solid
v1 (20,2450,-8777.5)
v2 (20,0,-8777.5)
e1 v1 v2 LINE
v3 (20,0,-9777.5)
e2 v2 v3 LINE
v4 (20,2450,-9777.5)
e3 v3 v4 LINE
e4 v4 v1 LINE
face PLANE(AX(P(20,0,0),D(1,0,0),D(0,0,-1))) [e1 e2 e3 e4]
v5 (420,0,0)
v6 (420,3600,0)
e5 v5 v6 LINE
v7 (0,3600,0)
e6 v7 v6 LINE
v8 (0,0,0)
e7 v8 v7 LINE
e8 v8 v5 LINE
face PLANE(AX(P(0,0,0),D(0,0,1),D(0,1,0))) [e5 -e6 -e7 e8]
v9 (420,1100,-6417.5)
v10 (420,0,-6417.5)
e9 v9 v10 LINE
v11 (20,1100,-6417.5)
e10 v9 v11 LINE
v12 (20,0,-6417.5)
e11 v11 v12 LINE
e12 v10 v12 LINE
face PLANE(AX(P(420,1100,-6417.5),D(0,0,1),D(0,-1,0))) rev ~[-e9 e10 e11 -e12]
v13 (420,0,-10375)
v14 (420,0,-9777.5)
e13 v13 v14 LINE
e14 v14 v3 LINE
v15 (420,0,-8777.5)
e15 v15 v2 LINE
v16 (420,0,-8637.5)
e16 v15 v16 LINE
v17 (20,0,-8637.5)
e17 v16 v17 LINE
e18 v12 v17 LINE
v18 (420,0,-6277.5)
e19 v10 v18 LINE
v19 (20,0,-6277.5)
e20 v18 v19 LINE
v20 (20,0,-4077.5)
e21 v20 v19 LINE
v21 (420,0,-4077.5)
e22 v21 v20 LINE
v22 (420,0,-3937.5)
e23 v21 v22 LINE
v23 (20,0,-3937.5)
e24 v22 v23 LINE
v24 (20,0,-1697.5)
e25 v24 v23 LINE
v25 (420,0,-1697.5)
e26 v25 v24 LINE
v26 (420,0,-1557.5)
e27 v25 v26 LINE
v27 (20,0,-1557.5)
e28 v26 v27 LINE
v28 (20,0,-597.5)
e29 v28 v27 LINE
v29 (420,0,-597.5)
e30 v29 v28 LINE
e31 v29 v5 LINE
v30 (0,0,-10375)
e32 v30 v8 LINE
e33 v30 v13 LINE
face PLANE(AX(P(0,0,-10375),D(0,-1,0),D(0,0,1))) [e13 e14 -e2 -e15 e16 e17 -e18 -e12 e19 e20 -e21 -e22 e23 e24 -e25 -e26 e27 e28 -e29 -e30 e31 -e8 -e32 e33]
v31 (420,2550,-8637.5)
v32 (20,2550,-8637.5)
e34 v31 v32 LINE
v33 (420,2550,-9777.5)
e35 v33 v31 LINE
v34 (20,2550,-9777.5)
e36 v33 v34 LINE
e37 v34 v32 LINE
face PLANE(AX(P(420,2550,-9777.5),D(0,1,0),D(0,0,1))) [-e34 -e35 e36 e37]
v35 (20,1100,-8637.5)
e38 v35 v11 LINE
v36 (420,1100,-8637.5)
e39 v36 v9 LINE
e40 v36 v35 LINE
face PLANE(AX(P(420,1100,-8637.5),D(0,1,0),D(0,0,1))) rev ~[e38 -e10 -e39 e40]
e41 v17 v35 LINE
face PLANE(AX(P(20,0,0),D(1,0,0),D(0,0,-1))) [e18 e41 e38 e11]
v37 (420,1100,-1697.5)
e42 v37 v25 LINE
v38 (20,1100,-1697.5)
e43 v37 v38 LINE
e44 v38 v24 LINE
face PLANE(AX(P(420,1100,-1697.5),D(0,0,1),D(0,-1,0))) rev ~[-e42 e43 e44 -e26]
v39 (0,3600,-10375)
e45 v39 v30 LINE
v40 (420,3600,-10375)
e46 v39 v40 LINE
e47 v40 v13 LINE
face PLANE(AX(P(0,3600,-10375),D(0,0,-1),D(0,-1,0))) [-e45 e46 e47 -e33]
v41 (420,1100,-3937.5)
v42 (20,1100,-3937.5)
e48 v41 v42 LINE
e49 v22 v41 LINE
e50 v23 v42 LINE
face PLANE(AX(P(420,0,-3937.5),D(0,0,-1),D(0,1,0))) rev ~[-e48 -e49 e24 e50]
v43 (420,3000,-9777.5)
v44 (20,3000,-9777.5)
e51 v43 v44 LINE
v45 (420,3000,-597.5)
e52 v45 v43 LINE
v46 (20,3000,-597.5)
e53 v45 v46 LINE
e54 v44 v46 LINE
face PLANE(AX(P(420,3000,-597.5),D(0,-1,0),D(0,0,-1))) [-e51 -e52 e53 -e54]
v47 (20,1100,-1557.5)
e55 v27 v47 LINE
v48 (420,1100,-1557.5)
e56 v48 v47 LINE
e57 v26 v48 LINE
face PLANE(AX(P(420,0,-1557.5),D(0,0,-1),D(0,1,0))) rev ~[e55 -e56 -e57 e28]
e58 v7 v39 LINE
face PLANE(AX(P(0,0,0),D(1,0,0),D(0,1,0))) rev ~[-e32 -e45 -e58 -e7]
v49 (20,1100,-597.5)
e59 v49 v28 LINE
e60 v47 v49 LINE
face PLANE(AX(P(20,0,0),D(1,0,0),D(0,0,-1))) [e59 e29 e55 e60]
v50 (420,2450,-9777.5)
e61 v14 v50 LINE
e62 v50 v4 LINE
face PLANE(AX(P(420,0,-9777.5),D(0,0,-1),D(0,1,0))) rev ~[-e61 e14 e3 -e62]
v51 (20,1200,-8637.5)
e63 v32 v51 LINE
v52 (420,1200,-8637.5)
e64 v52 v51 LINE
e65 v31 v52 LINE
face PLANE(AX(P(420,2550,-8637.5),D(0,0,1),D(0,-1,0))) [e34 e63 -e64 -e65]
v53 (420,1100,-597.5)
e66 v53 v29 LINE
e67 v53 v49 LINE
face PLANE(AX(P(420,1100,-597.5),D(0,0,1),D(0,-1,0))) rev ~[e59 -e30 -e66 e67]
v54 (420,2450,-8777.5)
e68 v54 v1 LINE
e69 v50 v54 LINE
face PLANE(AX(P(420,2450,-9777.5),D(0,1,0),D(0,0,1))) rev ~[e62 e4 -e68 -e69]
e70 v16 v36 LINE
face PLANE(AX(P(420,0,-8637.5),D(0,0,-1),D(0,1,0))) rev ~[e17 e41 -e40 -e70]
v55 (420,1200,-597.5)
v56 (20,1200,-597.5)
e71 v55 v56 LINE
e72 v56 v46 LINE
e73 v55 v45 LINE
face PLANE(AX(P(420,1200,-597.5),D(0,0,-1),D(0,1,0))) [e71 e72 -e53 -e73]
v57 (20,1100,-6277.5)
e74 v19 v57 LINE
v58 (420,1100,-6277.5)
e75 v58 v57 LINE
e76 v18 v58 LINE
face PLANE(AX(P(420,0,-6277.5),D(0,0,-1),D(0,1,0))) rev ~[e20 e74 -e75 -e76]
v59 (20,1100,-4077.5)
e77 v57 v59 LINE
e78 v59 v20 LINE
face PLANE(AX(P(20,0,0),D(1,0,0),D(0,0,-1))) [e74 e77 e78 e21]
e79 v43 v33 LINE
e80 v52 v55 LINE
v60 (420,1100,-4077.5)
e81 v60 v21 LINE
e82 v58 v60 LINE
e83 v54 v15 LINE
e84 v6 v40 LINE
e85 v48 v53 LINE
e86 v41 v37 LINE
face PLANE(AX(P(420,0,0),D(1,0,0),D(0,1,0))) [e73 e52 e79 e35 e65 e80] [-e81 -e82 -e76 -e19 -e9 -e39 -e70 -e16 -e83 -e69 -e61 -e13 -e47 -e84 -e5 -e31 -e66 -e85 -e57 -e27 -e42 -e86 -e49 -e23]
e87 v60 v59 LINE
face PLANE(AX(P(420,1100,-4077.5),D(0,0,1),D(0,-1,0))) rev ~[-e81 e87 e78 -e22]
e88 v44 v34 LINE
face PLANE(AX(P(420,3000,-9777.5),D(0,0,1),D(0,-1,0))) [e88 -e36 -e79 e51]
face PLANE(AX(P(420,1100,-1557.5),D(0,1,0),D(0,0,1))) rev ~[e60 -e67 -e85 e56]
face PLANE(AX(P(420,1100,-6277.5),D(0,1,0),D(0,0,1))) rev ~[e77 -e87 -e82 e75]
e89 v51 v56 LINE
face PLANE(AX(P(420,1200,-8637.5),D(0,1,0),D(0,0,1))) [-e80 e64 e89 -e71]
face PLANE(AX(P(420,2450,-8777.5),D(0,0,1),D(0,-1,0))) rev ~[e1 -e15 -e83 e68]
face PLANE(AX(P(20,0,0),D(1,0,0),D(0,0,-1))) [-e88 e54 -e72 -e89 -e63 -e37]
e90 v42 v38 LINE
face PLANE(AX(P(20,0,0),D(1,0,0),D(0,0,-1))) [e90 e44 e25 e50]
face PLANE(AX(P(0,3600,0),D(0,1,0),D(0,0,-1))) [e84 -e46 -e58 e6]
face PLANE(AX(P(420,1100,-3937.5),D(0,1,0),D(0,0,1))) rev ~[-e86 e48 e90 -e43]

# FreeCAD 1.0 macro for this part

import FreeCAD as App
import Part
import Sketcher
from FreeCAD import Vector
Q = App.Units.Quantity

doc = App.newDocument("Part")
params = doc.addObject("Spreadsheet::Sheet", "Params")
for row, (alias, value) in enumerate([
    ("sketch1_width", "3600 mm"),
    ("sketch1_height", "10375 mm"),
    ("pad1_length", "420 mm"),
    ("sketch2_width", "1100 mm"),
    ("sketch2_width2", "2450 mm"),
    ("sketch2_height", "960 mm"),
    ("sketch2_height2", "1000 mm"),
    ("sketch2_height3", "2220 mm"),
    ("pocket1_length", "400 mm"),
], start=1):
    params.set(f"A{row}", alias)
    params.set(f"B{row}", "=" + value)
    params.setAlias(f"B{row}", alias)

body = doc.addObject("PartDesign::Body", "Body")

# Sketch on YZ plane
sketch1 = body.newObject("Sketcher::SketchObject", "Sketch")
sketch1.AttachmentSupport = (doc.getObject("YZ_Plane"), [""])
sketch1.MapMode = "FlatFace"
sketch1.addGeometry(Part.LineSegment(Vector(3600, 0, 0), Vector(0, 0, 0)), False)
sketch1.addGeometry(Part.LineSegment(Vector(0, 0, 0), Vector(0, -10375, 0)), False)
sketch1.addGeometry(Part.LineSegment(Vector(0, -10375, 0), Vector(3600, -10375, 0)), False)
sketch1.addGeometry(Part.LineSegment(Vector(3600, -10375, 0), Vector(3600, 0, 0)), False)
sketch1.addConstraint(Sketcher.Constraint("Coincident", 0, 2, 1, 1))
sketch1.addConstraint(Sketcher.Constraint("Coincident", 1, 2, 2, 1))
sketch1.addConstraint(Sketcher.Constraint("Coincident", 2, 2, 3, 1))
sketch1.addConstraint(Sketcher.Constraint("Coincident", 3, 2, 0, 1))
sketch1.addConstraint(Sketcher.Constraint("Horizontal", 0))
sketch1.addConstraint(Sketcher.Constraint("Vertical", 1))
sketch1.addConstraint(Sketcher.Constraint("Horizontal", 2))
sketch1.addConstraint(Sketcher.Constraint("Vertical", 3))
sketch1.addConstraint(Sketcher.Constraint("Coincident", 0, 2, -1, 1))
sketch1.addConstraint(Sketcher.Constraint("DistanceX", 0, 2, 0, 1, Q("3600 mm")))
sketch1.addConstraint(Sketcher.Constraint("DistanceY", 1, 2, 1, 1, Q("10375 mm")))
sketch1.setExpression("Constraints[9]", "Params.sketch1_width")
sketch1.setExpression("Constraints[10]", "Params.sketch1_height")
pad1 = body.newObject("PartDesign::Pad", "Pad")
pad1.Profile = sketch1
pad1.setExpression("Length", "Params.pad1_length")

# Sketch on YZ plane
sketch2 = body.newObject("Sketcher::SketchObject", "Sketch001")
sketch2.AttachmentSupport = (doc.getObject("YZ_Plane"), [""])
sketch2.MapMode = "FlatFace"
sketch2.AttachmentOffset = App.Placement(Vector(0, 0, 420), App.Rotation())
sketch2.addGeometry(Part.LineSegment(Vector(1100, -597.5, 0), Vector(0, -597.5, 0)), False)
sketch2.addGeometry(Part.LineSegment(Vector(0, -597.5, 0), Vector(0, -1557.5, 0)), False)
sketch2.addGeometry(Part.LineSegment(Vector(0, -1557.5, 0), Vector(1100, -1557.5, 0)), False)
sketch2.addGeometry(Part.LineSegment(Vector(1100, -1557.5, 0), Vector(1100, -597.5, 0)), False)
sketch2.addGeometry(Part.LineSegment(Vector(2450, -8777.5, 0), Vector(0, -8777.5, 0)), False)
sketch2.addGeometry(Part.LineSegment(Vector(0, -8777.5, 0), Vector(0, -9777.5, 0)), False)
sketch2.addGeometry(Part.LineSegment(Vector(0, -9777.5, 0), Vector(2450, -9777.5, 0)), False)
sketch2.addGeometry(Part.LineSegment(Vector(2450, -9777.5, 0), Vector(2450, -8777.5, 0)), False)
sketch2.addGeometry(Part.LineSegment(Vector(1100, -6417.5, 0), Vector(0, -6417.5, 0)), False)
sketch2.addGeometry(Part.LineSegment(Vector(0, -6417.5, 0), Vector(0, -8637.5, 0)), False)
sketch2.addGeometry(Part.LineSegment(Vector(0, -8637.5, 0), Vector(1100, -8637.5, 0)), False)
sketch2.addGeometry(Part.LineSegment(Vector(1100, -8637.5, 0), Vector(1100, -6417.5, 0)), False)
sketch2.addGeometry(Part.LineSegment(Vector(1100, -4077.5, 0), Vector(0, -4077.5, 0)), False)
sketch2.addGeometry(Part.LineSegment(Vector(0, -4077.5, 0), Vector(0, -6277.5, 0)), False)
sketch2.addGeometry(Part.LineSegment(Vector(0, -6277.5, 0), Vector(1100, -6277.5, 0)), False)
sketch2.addGeometry(Part.LineSegment(Vector(1100, -6277.5, 0), Vector(1100, -4077.5, 0)), False)
sketch2.addGeometry(Part.LineSegment(Vector(1100, -1697.5, 0), Vector(0, -1697.5, 0)), False)
sketch2.addGeometry(Part.LineSegment(Vector(0, -1697.5, 0), Vector(0, -3937.5, 0)), False)
sketch2.addGeometry(Part.LineSegment(Vector(0, -3937.5, 0), Vector(1100, -3937.5, 0)), False)
sketch2.addGeometry(Part.LineSegment(Vector(1100, -3937.5, 0), Vector(1100, -1697.5, 0)), False)
sketch2.addGeometry(Part.LineSegment(Vector(3000, -9777.5, 0), Vector(3000, -597.5, 0)), False)
sketch2.addGeometry(Part.LineSegment(Vector(3000, -597.5, 0), Vector(1200, -597.5, 0)), False)
sketch2.addGeometry(Part.LineSegment(Vector(1200, -597.5, 0), Vector(1200, -8637.5, 0)), False)
sketch2.addGeometry(Part.LineSegment(Vector(1200, -8637.5, 0), Vector(2550, -8637.5, 0)), False)
sketch2.addGeometry(Part.LineSegment(Vector(2550, -8637.5, 0), Vector(2550, -9777.5, 0)), False)
sketch2.addGeometry(Part.LineSegment(Vector(2550, -9777.5, 0), Vector(3000, -9777.5, 0)), False)
sketch2.addConstraint(Sketcher.Constraint("Coincident", 0, 2, 1, 1))
sketch2.addConstraint(Sketcher.Constraint("Coincident", 1, 2, 2, 1))
sketch2.addConstraint(Sketcher.Constraint("Coincident", 2, 2, 3, 1))
sketch2.addConstraint(Sketcher.Constraint("Coincident", 3, 2, 0, 1))
sketch2.addConstraint(Sketcher.Constraint("Coincident", 4, 2, 5, 1))
sketch2.addConstraint(Sketcher.Constraint("Coincident", 5, 2, 6, 1))
sketch2.addConstraint(Sketcher.Constraint("Coincident", 6, 2, 7, 1))
sketch2.addConstraint(Sketcher.Constraint("Coincident", 7, 2, 4, 1))
sketch2.addConstraint(Sketcher.Constraint("Coincident", 8, 2, 9, 1))
sketch2.addConstraint(Sketcher.Constraint("Coincident", 9, 2, 10, 1))
sketch2.addConstraint(Sketcher.Constraint("Coincident", 10, 2, 11, 1))
sketch2.addConstraint(Sketcher.Constraint("Coincident", 11, 2, 8, 1))
sketch2.addConstraint(Sketcher.Constraint("Coincident", 12, 2, 13, 1))
sketch2.addConstraint(Sketcher.Constraint("Coincident", 13, 2, 14, 1))
sketch2.addConstraint(Sketcher.Constraint("Coincident", 14, 2, 15, 1))
sketch2.addConstraint(Sketcher.Constraint("Coincident", 15, 2, 12, 1))
sketch2.addConstraint(Sketcher.Constraint("Coincident", 16, 2, 17, 1))
sketch2.addConstraint(Sketcher.Constraint("Coincident", 17, 2, 18, 1))
sketch2.addConstraint(Sketcher.Constraint("Coincident", 18, 2, 19, 1))
sketch2.addConstraint(Sketcher.Constraint("Coincident", 19, 2, 16, 1))
sketch2.addConstraint(Sketcher.Constraint("Coincident", 20, 2, 21, 1))
sketch2.addConstraint(Sketcher.Constraint("Coincident", 21, 2, 22, 1))
sketch2.addConstraint(Sketcher.Constraint("Coincident", 22, 2, 23, 1))
sketch2.addConstraint(Sketcher.Constraint("Coincident", 23, 2, 24, 1))
sketch2.addConstraint(Sketcher.Constraint("Coincident", 24, 2, 25, 1))
sketch2.addConstraint(Sketcher.Constraint("Coincident", 25, 2, 20, 1))
sketch2.addConstraint(Sketcher.Constraint("Horizontal", 0))
sketch2.addConstraint(Sketcher.Constraint("Vertical", 1))
sketch2.addConstraint(Sketcher.Constraint("Horizontal", 2))
sketch2.addConstraint(Sketcher.Constraint("Vertical", 3))
sketch2.addConstraint(Sketcher.Constraint("Horizontal", 4))
sketch2.addConstraint(Sketcher.Constraint("Vertical", 5))
sketch2.addConstraint(Sketcher.Constraint("Horizontal", 6))
sketch2.addConstraint(Sketcher.Constraint("Vertical", 7))
sketch2.addConstraint(Sketcher.Constraint("Horizontal", 8))
sketch2.addConstraint(Sketcher.Constraint("Vertical", 9))
sketch2.addConstraint(Sketcher.Constraint("Horizontal", 10))
sketch2.addConstraint(Sketcher.Constraint("Vertical", 11))
sketch2.addConstraint(Sketcher.Constraint("Horizontal", 12))
sketch2.addConstraint(Sketcher.Constraint("Vertical", 13))
sketch2.addConstraint(Sketcher.Constraint("Horizontal", 14))
sketch2.addConstraint(Sketcher.Constraint("Vertical", 15))
sketch2.addConstraint(Sketcher.Constraint("Horizontal", 16))
sketch2.addConstraint(Sketcher.Constraint("Vertical", 17))
sketch2.addConstraint(Sketcher.Constraint("Horizontal", 18))
sketch2.addConstraint(Sketcher.Constraint("Vertical", 19))
sketch2.addConstraint(Sketcher.Constraint("Vertical", 20))
sketch2.addConstraint(Sketcher.Constraint("Horizontal", 21))
sketch2.addConstraint(Sketcher.Constraint("Vertical", 22))
sketch2.addConstraint(Sketcher.Constraint("Horizontal", 23))
sketch2.addConstraint(Sketcher.Constraint("Vertical", 24))
sketch2.addConstraint(Sketcher.Constraint("Horizontal", 25))
sketch2.addConstraint(Sketcher.Constraint("PointOnObject", 0, 2, -2))
sketch2.addConstraint(Sketcher.Constraint("PointOnObject", 4, 2, -2))
sketch2.addConstraint(Sketcher.Constraint("PointOnObject", 8, 2, -2))
sketch2.addConstraint(Sketcher.Constraint("PointOnObject", 12, 2, -2))
sketch2.addConstraint(Sketcher.Constraint("PointOnObject", 16, 2, -2))
sketch2.addConstraint(Sketcher.Constraint("Horizontal", 3, 2, 20, 2))
sketch2.addConstraint(Sketcher.Constraint("Horizontal", 10, 2, 22, 2))
sketch2.addConstraint(Sketcher.Constraint("Horizontal", 6, 2, 24, 2))
sketch2.addConstraint(Sketcher.Constraint("Vertical", 3, 2, 10, 2))
sketch2.addConstraint(Sketcher.Constraint("Vertical", 11, 2, 14, 2))
sketch2.addConstraint(Sketcher.Constraint("Vertical", 15, 2, 18, 2))
sketch2.addConstraint(Sketcher.Constraint("DistanceX", 0, 2, 0, 1, Q("1100 mm")))
sketch2.addConstraint(Sketcher.Constraint("DistanceX", 4, 2, 4, 1, Q("2450 mm")))
sketch2.addConstraint(Sketcher.Constraint("DistanceY", 1, 2, 1, 1, Q("960 mm")))
sketch2.addConstraint(Sketcher.Constraint("DistanceY", 5, 2, 5, 1, Q("1000 mm")))
sketch2.addConstraint(Sketcher.Constraint("DistanceY", 9, 2, 9, 1, Q("2220 mm")))
sketch2.addConstraint(Sketcher.Constraint("DistanceY", 13, 2, 13, 1, Q("2200 mm")))
sketch2.addConstraint(Sketcher.Constraint("DistanceY", 17, 2, 17, 1, Q("2240 mm")))
sketch2.addConstraint(Sketcher.Constraint("DistanceX", -1, 1, 20, 2, Q("3000 mm")))
sketch2.addConstraint(Sketcher.Constraint("DistanceY", 4, 2, 9, 2, Q("140 mm")))
sketch2.addConstraint(Sketcher.Constraint("DistanceY", 8, 2, 13, 2, Q("140 mm")))
sketch2.addConstraint(Sketcher.Constraint("DistanceY", 16, 2, 1, 2, Q("140 mm")))
sketch2.addConstraint(Sketcher.Constraint("DistanceY", 12, 2, 17, 2, Q("140 mm")))
sketch2.addConstraint(Sketcher.Constraint("DistanceX", 3, 2, 21, 2, Q("100 mm")))
sketch2.addConstraint(Sketcher.Constraint("DistanceX", 7, 2, 23, 2, Q("100 mm")))
sketch2.addConstraint(Sketcher.Constraint("DistanceY", 0, 2, -1, 1, Q("597.5 mm")))
sketch2.setExpression("Constraints[63]", "Params.sketch2_width")
sketch2.setExpression("Constraints[64]", "Params.sketch2_width2")
sketch2.setExpression("Constraints[65]", "Params.sketch2_height")
sketch2.setExpression("Constraints[66]", "Params.sketch2_height2")
sketch2.setExpression("Constraints[67]", "Params.sketch2_height3")
pocket1 = body.newObject("PartDesign::Pocket", "Pocket")
pocket1.Profile = sketch2
pocket1.setExpression("Length", "Params.pocket1_length")

doc.recompute()
